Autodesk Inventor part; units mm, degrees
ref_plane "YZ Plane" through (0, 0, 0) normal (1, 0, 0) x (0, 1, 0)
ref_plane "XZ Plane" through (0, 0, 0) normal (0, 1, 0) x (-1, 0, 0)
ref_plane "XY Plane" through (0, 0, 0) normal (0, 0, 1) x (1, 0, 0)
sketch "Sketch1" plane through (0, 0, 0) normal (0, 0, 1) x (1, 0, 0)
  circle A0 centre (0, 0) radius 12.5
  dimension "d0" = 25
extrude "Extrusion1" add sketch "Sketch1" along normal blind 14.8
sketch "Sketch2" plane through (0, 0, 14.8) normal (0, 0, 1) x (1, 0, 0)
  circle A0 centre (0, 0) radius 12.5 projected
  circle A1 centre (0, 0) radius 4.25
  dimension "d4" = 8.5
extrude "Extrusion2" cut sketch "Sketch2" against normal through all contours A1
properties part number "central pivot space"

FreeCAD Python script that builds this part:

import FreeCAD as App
import Part
import Sketcher

V = App.Vector

doc = App.newDocument("Part")
body = doc.addObject("PartDesign::Body", "Body")

# Sketch on XY plane
sketch1 = body.newObject("Sketcher::SketchObject", "Sketch")
sketch1.AttachmentSupport = (doc.getObject("XY_Plane"), [""])
sketch1.MapMode = "FlatFace"
sketch1.addGeometry(Part.Circle(V(0, 0, 0), V(0, 0, 1), 12), False)
sketch1.addConstraint(Sketcher.Constraint("Coincident", 0, 3, -1, 1))
sketch1.addConstraint(Sketcher.Constraint("Diameter", 0, 25.0))
pad1 = body.newObject("PartDesign::Pad", "Pad")
pad1.Profile = sketch1
pad1.Length = 14.8

# Sketch on XY plane
sketch2 = body.newObject("Sketcher::SketchObject", "Sketch001")
sketch2.AttachmentSupport = (doc.getObject("XY_Plane"), [""])
sketch2.MapMode = "FlatFace"
sketch2.AttachmentOffset = App.Placement(V(0, 0, 14.8), App.Rotation())
sketch2.addGeometry(Part.Circle(V(0, 0, 0), V(0, 0, 1), 4.2), False)
sketch2.addConstraint(Sketcher.Constraint("Coincident", 0, 3, -1, 1))
sketch2.addConstraint(Sketcher.Constraint("Diameter", 0, 8.5))
pocket1 = body.newObject("PartDesign::Pocket", "Pocket")
pocket1.Profile = sketch2
pocket1.Type = "ThroughAll"

doc.recompute()
